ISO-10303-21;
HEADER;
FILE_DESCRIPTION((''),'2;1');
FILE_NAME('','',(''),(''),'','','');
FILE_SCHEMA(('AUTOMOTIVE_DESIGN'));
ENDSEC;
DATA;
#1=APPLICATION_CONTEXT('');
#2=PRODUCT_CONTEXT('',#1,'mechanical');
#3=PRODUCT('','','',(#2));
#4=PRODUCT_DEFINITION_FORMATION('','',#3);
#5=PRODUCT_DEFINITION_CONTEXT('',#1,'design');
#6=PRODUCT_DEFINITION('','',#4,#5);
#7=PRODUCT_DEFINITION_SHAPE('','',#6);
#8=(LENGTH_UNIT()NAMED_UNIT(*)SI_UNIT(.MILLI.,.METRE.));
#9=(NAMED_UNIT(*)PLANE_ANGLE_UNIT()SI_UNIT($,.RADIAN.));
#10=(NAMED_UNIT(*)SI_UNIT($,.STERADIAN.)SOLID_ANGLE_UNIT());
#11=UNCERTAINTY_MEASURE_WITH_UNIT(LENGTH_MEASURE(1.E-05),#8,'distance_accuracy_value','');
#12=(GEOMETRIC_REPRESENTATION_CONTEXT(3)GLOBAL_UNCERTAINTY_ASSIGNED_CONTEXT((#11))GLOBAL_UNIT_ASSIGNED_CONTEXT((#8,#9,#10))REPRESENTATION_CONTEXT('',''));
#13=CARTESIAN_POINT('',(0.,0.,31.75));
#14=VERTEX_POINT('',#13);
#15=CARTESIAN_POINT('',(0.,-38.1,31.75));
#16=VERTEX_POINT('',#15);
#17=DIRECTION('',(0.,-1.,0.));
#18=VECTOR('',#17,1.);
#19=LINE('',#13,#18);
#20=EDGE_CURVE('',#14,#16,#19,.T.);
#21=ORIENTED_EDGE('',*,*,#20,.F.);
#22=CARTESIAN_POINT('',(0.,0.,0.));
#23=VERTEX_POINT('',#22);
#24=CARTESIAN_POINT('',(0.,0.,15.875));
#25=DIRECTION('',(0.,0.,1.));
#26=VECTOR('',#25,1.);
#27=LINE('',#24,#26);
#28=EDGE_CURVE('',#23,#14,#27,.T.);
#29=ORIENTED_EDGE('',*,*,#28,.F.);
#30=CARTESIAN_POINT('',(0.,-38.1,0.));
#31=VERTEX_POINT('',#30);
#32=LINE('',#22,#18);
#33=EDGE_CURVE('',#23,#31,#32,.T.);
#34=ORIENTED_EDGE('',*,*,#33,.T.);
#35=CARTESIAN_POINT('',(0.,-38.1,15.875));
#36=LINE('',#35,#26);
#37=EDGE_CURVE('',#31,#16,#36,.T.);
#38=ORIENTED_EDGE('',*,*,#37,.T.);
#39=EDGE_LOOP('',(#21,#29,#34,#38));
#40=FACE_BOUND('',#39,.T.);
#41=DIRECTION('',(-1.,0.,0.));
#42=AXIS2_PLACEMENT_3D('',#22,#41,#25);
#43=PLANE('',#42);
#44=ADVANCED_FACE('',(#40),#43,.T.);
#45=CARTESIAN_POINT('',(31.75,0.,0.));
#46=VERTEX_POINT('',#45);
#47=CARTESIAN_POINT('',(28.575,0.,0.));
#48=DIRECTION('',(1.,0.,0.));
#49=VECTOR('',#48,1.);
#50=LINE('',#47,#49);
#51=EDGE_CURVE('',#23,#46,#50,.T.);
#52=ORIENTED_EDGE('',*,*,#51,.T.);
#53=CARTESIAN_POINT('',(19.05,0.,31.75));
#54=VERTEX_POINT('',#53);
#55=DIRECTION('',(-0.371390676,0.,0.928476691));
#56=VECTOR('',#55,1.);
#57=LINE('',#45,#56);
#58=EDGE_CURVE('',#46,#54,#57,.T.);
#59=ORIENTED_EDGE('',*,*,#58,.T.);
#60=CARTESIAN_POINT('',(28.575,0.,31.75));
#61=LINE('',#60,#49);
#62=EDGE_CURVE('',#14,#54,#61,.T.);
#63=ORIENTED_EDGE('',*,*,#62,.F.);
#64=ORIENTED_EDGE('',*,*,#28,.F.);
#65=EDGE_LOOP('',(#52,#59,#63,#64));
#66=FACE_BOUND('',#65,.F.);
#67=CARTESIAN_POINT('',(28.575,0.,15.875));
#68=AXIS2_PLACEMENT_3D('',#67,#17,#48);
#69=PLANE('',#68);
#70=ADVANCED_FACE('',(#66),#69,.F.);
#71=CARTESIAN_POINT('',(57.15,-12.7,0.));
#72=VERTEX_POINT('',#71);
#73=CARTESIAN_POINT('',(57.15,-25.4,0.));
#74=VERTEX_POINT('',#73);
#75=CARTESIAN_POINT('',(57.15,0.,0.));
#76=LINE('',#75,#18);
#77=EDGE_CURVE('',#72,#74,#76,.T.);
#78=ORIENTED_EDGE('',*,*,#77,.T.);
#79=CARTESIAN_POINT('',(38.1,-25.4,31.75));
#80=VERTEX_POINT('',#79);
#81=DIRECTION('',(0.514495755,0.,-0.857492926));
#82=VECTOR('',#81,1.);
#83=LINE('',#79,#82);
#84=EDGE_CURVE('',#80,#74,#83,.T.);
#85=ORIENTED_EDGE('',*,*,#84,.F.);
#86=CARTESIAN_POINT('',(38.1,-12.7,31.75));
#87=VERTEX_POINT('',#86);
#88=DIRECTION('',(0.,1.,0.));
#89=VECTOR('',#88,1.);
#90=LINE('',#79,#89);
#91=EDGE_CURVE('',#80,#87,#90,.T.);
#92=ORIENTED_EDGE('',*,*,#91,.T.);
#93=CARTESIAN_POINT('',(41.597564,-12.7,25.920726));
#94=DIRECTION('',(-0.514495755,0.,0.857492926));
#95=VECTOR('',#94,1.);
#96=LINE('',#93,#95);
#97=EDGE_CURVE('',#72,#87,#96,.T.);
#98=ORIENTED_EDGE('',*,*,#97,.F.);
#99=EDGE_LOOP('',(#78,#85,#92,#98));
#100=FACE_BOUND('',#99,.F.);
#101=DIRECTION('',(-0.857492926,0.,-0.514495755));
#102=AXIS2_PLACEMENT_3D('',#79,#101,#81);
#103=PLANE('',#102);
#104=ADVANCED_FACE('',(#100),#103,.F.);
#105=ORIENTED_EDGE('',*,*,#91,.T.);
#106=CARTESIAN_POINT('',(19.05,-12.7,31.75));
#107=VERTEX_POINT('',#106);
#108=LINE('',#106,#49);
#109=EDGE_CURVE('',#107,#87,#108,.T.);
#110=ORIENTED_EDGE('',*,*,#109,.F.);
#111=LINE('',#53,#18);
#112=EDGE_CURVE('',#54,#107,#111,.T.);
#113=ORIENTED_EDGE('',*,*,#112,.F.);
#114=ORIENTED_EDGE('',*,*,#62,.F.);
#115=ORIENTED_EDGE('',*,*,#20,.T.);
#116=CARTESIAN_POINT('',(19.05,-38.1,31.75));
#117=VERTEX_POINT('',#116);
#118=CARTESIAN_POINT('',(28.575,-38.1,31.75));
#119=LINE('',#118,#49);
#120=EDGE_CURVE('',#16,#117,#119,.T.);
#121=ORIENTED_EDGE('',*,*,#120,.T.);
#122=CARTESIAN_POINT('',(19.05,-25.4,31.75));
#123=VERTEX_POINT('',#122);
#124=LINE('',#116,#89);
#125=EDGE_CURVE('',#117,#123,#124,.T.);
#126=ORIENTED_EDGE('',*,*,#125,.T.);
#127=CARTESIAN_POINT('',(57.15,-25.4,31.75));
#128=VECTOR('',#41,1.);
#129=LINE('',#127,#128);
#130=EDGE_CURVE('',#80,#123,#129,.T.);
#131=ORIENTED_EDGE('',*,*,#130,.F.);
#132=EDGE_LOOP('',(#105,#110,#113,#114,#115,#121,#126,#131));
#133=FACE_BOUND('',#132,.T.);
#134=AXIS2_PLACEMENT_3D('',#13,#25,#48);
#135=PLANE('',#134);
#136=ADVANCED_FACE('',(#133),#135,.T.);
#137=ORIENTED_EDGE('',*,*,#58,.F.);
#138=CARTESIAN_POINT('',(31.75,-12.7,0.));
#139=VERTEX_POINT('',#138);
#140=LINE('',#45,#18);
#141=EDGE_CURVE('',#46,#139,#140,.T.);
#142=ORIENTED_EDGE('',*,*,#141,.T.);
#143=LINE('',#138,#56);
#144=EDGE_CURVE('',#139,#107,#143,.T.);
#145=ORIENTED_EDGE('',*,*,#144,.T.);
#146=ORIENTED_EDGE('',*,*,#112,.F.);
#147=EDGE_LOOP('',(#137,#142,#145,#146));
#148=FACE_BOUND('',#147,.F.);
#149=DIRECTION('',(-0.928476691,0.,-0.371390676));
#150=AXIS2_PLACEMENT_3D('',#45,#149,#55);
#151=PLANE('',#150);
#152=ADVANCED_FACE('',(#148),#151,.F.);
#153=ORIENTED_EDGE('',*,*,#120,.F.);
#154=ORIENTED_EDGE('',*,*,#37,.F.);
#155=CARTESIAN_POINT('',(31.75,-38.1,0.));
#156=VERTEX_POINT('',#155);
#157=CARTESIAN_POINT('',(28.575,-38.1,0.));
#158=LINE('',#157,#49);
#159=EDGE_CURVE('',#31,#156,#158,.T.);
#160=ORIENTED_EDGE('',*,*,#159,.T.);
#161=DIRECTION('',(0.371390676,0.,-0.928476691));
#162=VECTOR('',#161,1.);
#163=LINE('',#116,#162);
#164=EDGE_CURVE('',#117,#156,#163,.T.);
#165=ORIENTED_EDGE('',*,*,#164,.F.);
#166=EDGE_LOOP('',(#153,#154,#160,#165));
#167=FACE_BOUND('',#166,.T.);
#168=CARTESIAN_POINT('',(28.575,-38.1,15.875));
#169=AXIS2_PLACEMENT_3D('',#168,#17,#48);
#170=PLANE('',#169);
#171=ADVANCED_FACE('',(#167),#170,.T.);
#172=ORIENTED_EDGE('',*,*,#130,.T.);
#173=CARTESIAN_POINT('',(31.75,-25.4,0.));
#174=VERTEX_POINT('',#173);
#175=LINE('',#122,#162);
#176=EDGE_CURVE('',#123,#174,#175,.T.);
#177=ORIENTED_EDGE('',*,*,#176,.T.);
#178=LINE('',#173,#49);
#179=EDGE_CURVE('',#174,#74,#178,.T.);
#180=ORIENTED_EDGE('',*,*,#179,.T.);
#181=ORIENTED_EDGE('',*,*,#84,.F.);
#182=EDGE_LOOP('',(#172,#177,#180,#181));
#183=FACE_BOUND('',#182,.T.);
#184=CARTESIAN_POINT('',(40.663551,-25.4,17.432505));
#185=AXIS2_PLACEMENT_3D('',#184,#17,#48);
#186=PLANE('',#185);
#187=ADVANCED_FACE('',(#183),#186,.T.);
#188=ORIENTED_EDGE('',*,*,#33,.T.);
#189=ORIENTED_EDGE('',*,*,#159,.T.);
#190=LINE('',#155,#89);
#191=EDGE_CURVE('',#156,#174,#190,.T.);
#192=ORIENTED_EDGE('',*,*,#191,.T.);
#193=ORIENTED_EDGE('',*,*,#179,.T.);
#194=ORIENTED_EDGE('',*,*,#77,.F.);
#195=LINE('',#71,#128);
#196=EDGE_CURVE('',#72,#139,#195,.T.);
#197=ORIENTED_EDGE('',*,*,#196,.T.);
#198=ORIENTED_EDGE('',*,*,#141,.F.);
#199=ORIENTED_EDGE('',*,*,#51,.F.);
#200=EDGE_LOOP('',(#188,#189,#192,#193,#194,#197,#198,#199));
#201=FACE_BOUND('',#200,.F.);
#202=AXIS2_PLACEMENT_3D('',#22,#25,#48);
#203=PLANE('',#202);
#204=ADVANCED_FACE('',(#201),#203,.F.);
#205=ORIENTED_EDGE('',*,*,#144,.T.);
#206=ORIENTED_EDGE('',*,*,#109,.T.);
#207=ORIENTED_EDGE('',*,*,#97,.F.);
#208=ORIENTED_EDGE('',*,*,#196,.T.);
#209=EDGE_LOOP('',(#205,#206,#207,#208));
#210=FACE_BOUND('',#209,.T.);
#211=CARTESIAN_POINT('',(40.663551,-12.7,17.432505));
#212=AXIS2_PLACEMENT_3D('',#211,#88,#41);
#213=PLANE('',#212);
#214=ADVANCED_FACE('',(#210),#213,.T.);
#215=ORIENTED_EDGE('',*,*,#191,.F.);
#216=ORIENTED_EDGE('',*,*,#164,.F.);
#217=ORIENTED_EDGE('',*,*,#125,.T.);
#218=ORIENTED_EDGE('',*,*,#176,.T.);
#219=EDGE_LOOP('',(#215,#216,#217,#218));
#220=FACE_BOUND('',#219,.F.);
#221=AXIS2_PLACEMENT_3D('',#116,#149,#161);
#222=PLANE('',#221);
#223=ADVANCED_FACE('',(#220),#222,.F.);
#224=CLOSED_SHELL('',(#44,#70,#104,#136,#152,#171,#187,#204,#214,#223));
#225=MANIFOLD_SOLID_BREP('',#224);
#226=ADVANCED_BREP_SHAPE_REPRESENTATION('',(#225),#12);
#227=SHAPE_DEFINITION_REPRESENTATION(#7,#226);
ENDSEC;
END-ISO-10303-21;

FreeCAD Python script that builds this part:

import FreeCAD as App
import Part
import Sketcher

V = App.Vector
Q = App.Units.Quantity


def add_polygon(sketch, points):
    """Adds a closed chain of lines whose ends are joined by coincident constraints."""
    first, n = sketch.GeometryCount, len(points)
    for a, b in zip(points, points[1:] + points[:1]):
        sketch.addGeometry(Part.LineSegment(App.Vector(*a, 0), App.Vector(*b, 0)), False)
    for i in range(n):
        sketch.addConstraint(Sketcher.Constraint("Coincident", first + i, 2, first + (i + 1) % n, 1))

doc = App.newDocument("Part")
params = doc.addObject("Spreadsheet::Sheet", "Params")
for row, (alias, value) in enumerate([
    ("sketch1_width", "2.25 in"),
    ("sketch1_height", "1.25 in"),
    ("pad1_length", "1.5 in"),
    ("sketch2_width", "1 in"),
    ("sketch2_width2", "1.5 in"),
    ("sketch2_height", "1.25 in"),
    ("pocket1_length", "0.5 in"),
    ("sketch3_width", "1 in"),
    ("sketch3_width2", "1.5 in"),
    ("sketch3_height", "1.25 in"),
    ("pocket2_length", "0.5 in"),
    ("sketch4_width", "0.75 in"),
    ("sketch4_height", "1.25 in"),
], start=1):
    params.set(f"A{row}", alias)
    params.set(f"B{row}", "=" + value)
    params.setAlias(f"B{row}", alias)

body = doc.addObject("PartDesign::Body", "Body")

# Sketch on XZ plane
sketch1 = body.newObject("Sketcher::SketchObject", "Sketch")
sketch1.AttachmentSupport = (doc.getObject("XZ_Plane"), [""])
sketch1.MapMode = "FlatFace"
add_polygon(sketch1, [(0, 32), (0, 0), (57, 0), (57, 32)])  # lines 0-3
sketch1.addConstraint([
    Sketcher.Constraint("Vertical", 0),
    Sketcher.Constraint("Horizontal", 1),
    Sketcher.Constraint("Vertical", 2),
    Sketcher.Constraint("Horizontal", 3),
    Sketcher.Constraint("Coincident", 0, 2, -1, 1),
    Sketcher.Constraint("DistanceX", 1, 1, 1, 2, Q("2.25 in")),
    Sketcher.Constraint("DistanceY", 0, 2, 0, 1, Q("1.25 in")),
])
sketch1.setExpression("Constraints[9]", "Params.sketch1_width")
sketch1.setExpression("Constraints[10]", "Params.sketch1_height")
pad1 = body.newObject("PartDesign::Pad", "Pad")
pad1.Profile = sketch1
pad1.setExpression("Length", "Params.pad1_length")

# Sketch on XZ plane
sketch2 = body.newObject("Sketcher::SketchObject", "Sketch001")
sketch2.AttachmentSupport = (doc.getObject("XZ_Plane"), [""])
sketch2.MapMode = "FlatFace"
sketch2.AttachmentOffset = App.Placement(V(0, 0, 1.5 * 25.4), App.Rotation())
add_polygon(sketch2, [(57, 32), (19, 32), (32, 0), (57, 0)])  # lines 0-3
sketch2.addConstraint([
    Sketcher.Constraint("Horizontal", 0),
    Sketcher.Constraint("Horizontal", 2),
    Sketcher.Constraint("Vertical", 3),
    Sketcher.Constraint("PointOnObject", 1, 2, -1),
    Sketcher.Constraint("DistanceX", 2, 1, 2, 2, Q("1 in")),
    Sketcher.Constraint("DistanceX", 0, 2, 0, 1, Q("1.5 in")),
    Sketcher.Constraint("DistanceY", 3, 1, 3, 2, Q("1.25 in")),
    Sketcher.Constraint("DistanceX", -1, 1, 0, 2, Q("0.75 in")),
])
sketch2.setExpression("Constraints[8]", "Params.sketch2_width")
sketch2.setExpression("Constraints[9]", "Params.sketch2_width2")
sketch2.setExpression("Constraints[10]", "Params.sketch2_height")
pocket1 = body.newObject("PartDesign::Pocket", "Pocket")
pocket1.Profile = sketch2
pocket1.setExpression("Length", "Params.pocket1_length")

# Sketch on XZ plane
sketch3 = body.newObject("Sketcher::SketchObject", "Sketch002")
sketch3.AttachmentSupport = (doc.getObject("XZ_Plane"), [""])
sketch3.MapMode = "FlatFace"
add_polygon(sketch3, [(32, 0), (19, 32), (57, 32), (57, 0)])  # lines 0-3
sketch3.addConstraint([
    Sketcher.Constraint("Horizontal", 1),
    Sketcher.Constraint("Vertical", 2),
    Sketcher.Constraint("Horizontal", 3),
    Sketcher.Constraint("PointOnObject", 2, 2, -1),
    Sketcher.Constraint("DistanceX", 3, 2, 3, 1, Q("1 in")),
    Sketcher.Constraint("DistanceX", 1, 1, 1, 2, Q("1.5 in")),
    Sketcher.Constraint("DistanceY", 2, 2, 2, 1, Q("1.25 in")),
    Sketcher.Constraint("DistanceX", -1, 1, 0, 2, Q("0.75 in")),
])
sketch3.setExpression("Constraints[8]", "Params.sketch3_width")
sketch3.setExpression("Constraints[9]", "Params.sketch3_width2")
sketch3.setExpression("Constraints[10]", "Params.sketch3_height")
pocket2 = body.newObject("PartDesign::Pocket", "Pocket001")
pocket2.Profile = sketch3
pocket2.setExpression("Length", "Params.pocket2_length")
pocket2.Reversed = True

# Sketch on XZ plane
sketch4 = body.newObject("Sketcher::SketchObject", "Sketch003")
sketch4.AttachmentSupport = (doc.getObject("XZ_Plane"), [""])
sketch4.MapMode = "FlatFace"
sketch4.AttachmentOffset = App.Placement(V(0, 0, 1 * 25.4), App.Rotation())
add_polygon(sketch4, [(38, 32), (57, 0), (57, 32)])  # lines 0-2
sketch4.addConstraint([
    Sketcher.Constraint("Vertical", 1),
    Sketcher.Constraint("Horizontal", 2),
    Sketcher.Constraint("PointOnObject", 0, 2, -1),
    Sketcher.Constraint("DistanceX", 2, 2, 2, 1, Q("0.75 in")),
    Sketcher.Constraint("DistanceY", 1, 1, 1, 2, Q("1.25 in")),
    Sketcher.Constraint("DistanceX", -1, 1, 2, 2, Q("1.5 in")),
])
sketch4.setExpression("Constraints[6]", "Params.sketch4_width")
sketch4.setExpression("Constraints[7]", "Params.sketch4_height")
pocket3 = body.newObject("PartDesign::Pocket", "Pocket002")
pocket3.Profile = sketch4
pocket3.Type = "ThroughAll"

doc.recompute()
